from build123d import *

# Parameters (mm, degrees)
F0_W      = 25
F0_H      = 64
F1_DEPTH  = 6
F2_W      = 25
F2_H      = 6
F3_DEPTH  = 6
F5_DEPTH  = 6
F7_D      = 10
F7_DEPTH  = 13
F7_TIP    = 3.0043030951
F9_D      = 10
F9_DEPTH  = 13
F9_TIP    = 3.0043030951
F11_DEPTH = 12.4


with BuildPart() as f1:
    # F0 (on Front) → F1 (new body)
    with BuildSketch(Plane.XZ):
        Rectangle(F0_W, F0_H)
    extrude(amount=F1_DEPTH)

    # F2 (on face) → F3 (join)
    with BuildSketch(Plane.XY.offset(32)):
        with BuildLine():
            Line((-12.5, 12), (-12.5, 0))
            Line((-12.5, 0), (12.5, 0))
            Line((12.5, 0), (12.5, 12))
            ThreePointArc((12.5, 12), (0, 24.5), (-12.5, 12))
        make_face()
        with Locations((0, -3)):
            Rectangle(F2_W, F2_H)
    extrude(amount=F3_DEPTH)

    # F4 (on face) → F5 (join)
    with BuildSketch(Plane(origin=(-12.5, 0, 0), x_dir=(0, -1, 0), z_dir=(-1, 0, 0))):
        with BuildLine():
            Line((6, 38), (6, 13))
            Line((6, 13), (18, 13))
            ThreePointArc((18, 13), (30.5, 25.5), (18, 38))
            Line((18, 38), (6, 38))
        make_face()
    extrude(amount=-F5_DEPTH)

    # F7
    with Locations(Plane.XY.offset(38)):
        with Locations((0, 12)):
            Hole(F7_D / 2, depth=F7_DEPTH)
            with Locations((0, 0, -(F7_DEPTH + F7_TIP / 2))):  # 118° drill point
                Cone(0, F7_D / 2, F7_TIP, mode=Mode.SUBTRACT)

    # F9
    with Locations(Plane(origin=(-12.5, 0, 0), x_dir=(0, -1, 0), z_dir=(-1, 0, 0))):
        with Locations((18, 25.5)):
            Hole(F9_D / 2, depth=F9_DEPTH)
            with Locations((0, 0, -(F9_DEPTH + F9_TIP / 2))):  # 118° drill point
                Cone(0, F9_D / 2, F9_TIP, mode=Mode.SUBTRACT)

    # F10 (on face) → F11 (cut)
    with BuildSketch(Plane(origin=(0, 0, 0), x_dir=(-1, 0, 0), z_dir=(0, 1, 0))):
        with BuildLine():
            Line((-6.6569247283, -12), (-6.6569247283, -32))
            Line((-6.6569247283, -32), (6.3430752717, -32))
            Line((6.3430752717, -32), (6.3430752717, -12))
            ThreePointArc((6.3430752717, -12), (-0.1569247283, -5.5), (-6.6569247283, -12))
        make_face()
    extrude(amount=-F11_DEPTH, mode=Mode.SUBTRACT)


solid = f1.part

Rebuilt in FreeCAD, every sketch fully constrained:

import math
import FreeCAD as App
import Part
import Sketcher


def add_polygon(sketch, points):
    """Adds a closed chain of lines whose ends are joined by coincident constraints."""
    first, n = sketch.GeometryCount, len(points)
    for a, b in zip(points, points[1:] + points[:1]):
        sketch.addGeometry(Part.LineSegment(App.Vector(*a, 0), App.Vector(*b, 0)), False)
    for i in range(n):
        sketch.addConstraint(Sketcher.Constraint("Coincident", first + i, 2, first + (i + 1) % n, 1))

doc = App.newDocument("Part")
params = doc.addObject("Spreadsheet::Sheet", "Params")
for row, (alias, value) in enumerate([
    ("sketch1_width", "25 mm"),
    ("sketch1_height", "64 mm"),
    ("pad1_length", "6 mm"),
    ("sketch2_radius", "12.5 mm"),
    ("sketch2_height", "18 mm"),
    ("pad2_length", "6 mm"),
    ("sketch3_radius", "12.5 mm"),
    ("sketch3_width", "12 mm"),
    ("pad3_length", "6 mm"),
    ("sketch4_diameter", "10 mm"),
    ("hole_diameter", "10 mm"),
    ("hole_depth", "13 mm"),
    ("sketch5_diameter", "10 mm"),
    ("hole2_diameter", "10 mm"),
    ("hole2_depth", "13 mm"),
    ("sketch6_radius", "6.5 mm"),
    ("sketch6_height", "20 mm"),
    ("pocket1_length", "12.4 mm"),
], start=1):
    params.set(f"A{row}", alias)
    params.set(f"B{row}", "=" + value)
    params.setAlias(f"B{row}", alias)

body = doc.addObject("PartDesign::Body", "Body")

sketch1 = body.newObject("Sketcher::SketchObject", "Sketch")
sketch1.AttachmentSupport = (doc.getObject("XZ_Plane"), [""])
sketch1.MapMode = "FlatFace"
add_polygon(sketch1, [(-12, 32), (-12, -32), (12, -32), (12, 32)])
sketch1.addConstraint(Sketcher.Constraint("Vertical", 0))
sketch1.addConstraint(Sketcher.Constraint("Horizontal", 1))
sketch1.addConstraint(Sketcher.Constraint("Vertical", 2))
sketch1.addConstraint(Sketcher.Constraint("Horizontal", 3))
sketch1.addConstraint(Sketcher.Constraint("Symmetric", 0, 2, 2, 2, -1, 1))
sketch1.addConstraint(Sketcher.Constraint("DistanceX", 1, 1, 1, 2, 25.0))
sketch1.addConstraint(Sketcher.Constraint("DistanceY", 0, 2, 0, 1, 64.0))
sketch1.setExpression("Constraints[9]", "Params.sketch1_width")
sketch1.setExpression("Constraints[10]", "Params.sketch1_height")
pad1 = body.newObject("PartDesign::Pad", "Pad")
pad1.Profile = sketch1
pad1.setExpression("Length", "Params.pad1_length")

sketch2 = body.newObject("Sketcher::SketchObject", "Sketch001")
sketch2.AttachmentSupport = (doc.getObject("XY_Plane"), [""])
sketch2.MapMode = "FlatFace"
sketch2.AttachmentOffset = App.Placement(App.Vector(0, 0, 32), App.Rotation())
sketch2.addGeometry(Part.LineSegment(App.Vector(-12, 12, 0), App.Vector(-12, -6, 0)), False)
sketch2.addGeometry(Part.LineSegment(App.Vector(-12, -6, 0), App.Vector(12, -6, 0)), False)
sketch2.addGeometry(Part.LineSegment(App.Vector(12, -6, 0), App.Vector(12, 12, 0)), False)
sketch2.addGeometry(Part.ArcOfCircle(Part.Circle(App.Vector(0, 12, 0), App.Vector(0, 0, 1), 12), math.radians(0), math.radians(180)), False)
sketch2.addConstraint(Sketcher.Constraint("Coincident", 0, 2, 1, 1))
sketch2.addConstraint(Sketcher.Constraint("Coincident", 1, 2, 2, 1))
sketch2.addConstraint(Sketcher.Constraint("Tangent", 2, 2, 3, 1))
sketch2.addConstraint(Sketcher.Constraint("Tangent", 3, 2, 0, 1))
sketch2.addConstraint(Sketcher.Constraint("Vertical", 0))
sketch2.addConstraint(Sketcher.Constraint("Horizontal", 1))
sketch2.addConstraint(Sketcher.Constraint("Vertical", 2))
sketch2.addConstraint(Sketcher.Constraint("PointOnObject", 3, 3, -2))
sketch2.addConstraint(Sketcher.Constraint("Radius", 3, 12.5))
sketch2.addConstraint(Sketcher.Constraint("DistanceY", 0, 2, 0, 1, 18.0))
sketch2.addConstraint(Sketcher.Constraint("DistanceY", -1, 1, 3, 3, 12.0))
sketch2.setExpression("Constraints[8]", "Params.sketch2_radius")
sketch2.setExpression("Constraints[9]", "Params.sketch2_height")
pad2 = body.newObject("PartDesign::Pad", "Pad001")
pad2.Profile = sketch2
pad2.setExpression("Length", "Params.pad2_length")

sketch3 = body.newObject("Sketcher::SketchObject", "Sketch002")
sketch3.AttachmentSupport = (doc.getObject("YZ_Plane"), [""])
sketch3.MapMode = "FlatFace"
sketch3.AttachmentOffset = App.Placement(App.Vector(0, 0, -12.5), App.Rotation())
sketch3.addGeometry(Part.LineSegment(App.Vector(-6, 38, 0), App.Vector(-6, 13, 0)), False)
sketch3.addGeometry(Part.LineSegment(App.Vector(-6, 13, 0), App.Vector(-18, 13, 0)), False)
sketch3.addGeometry(Part.ArcOfCircle(Part.Circle(App.Vector(-18, 26, 0), App.Vector(0, 0, 1), 12), math.radians(90), math.radians(270)), False)
sketch3.addGeometry(Part.LineSegment(App.Vector(-18, 38, 0), App.Vector(-6, 38, 0)), False)
sketch3.addConstraint(Sketcher.Constraint("Coincident", 0, 2, 1, 1))
sketch3.addConstraint(Sketcher.Constraint("Tangent", 1, 2, 2, 2))
sketch3.addConstraint(Sketcher.Constraint("Tangent", 2, 1, 3, 1))
sketch3.addConstraint(Sketcher.Constraint("Coincident", 3, 2, 0, 1))
sketch3.addConstraint(Sketcher.Constraint("Vertical", 0))
sketch3.addConstraint(Sketcher.Constraint("Horizontal", 1))
sketch3.addConstraint(Sketcher.Constraint("Horizontal", 3))
sketch3.addConstraint(Sketcher.Constraint("Radius", 2, 12.5))
sketch3.addConstraint(Sketcher.Constraint("DistanceX", 1, 2, 1, 1, 12.0))
sketch3.addConstraint(Sketcher.Constraint("DistanceX", 2, 3, -1, 1, 18.0))
sketch3.addConstraint(Sketcher.Constraint("DistanceY", -1, 1, 0, 2, 13.0))
sketch3.setExpression("Constraints[7]", "Params.sketch3_radius")
sketch3.setExpression("Constraints[8]", "Params.sketch3_width")
pad3 = body.newObject("PartDesign::Pad", "Pad002")
pad3.Profile = sketch3
pad3.setExpression("Length", "Params.pad3_length")

sketch4 = body.newObject("Sketcher::SketchObject", "Sketch003")
sketch4.AttachmentSupport = (doc.getObject("XY_Plane"), [""])
sketch4.MapMode = "FlatFace"
sketch4.AttachmentOffset = App.Placement(App.Vector(0, 0, 38), App.Rotation())
sketch4.addGeometry(Part.Circle(App.Vector(0, 12, 0), App.Vector(0, 0, 1), 5), False)
sketch4.addConstraint(Sketcher.Constraint("PointOnObject", 0, 3, -2))
sketch4.addConstraint(Sketcher.Constraint("Diameter", 0, 10.0))
sketch4.addConstraint(Sketcher.Constraint("DistanceY", -1, 1, 0, 3, 12.0))
sketch4.setExpression("Constraints[1]", "Params.sketch4_diameter")
doc.recompute()
hole = body.newObject("PartDesign::Hole", "Hole")
hole.Profile = sketch4
hole.ThreadType = "None"
hole.setExpression("Diameter", "Params.hole_diameter")
hole.DepthType = "Dimension"
hole.setExpression("Depth", "Params.hole_depth")
hole.DrillPoint = "Angled"
hole.DrillPointAngle = 118

sketch5 = body.newObject("Sketcher::SketchObject", "Sketch004")
sketch5.AttachmentSupport = (doc.getObject("YZ_Plane"), [""])
sketch5.MapMode = "FlatFace"
sketch5.AttachmentOffset = App.Placement(App.Vector(0, 0, -12.5), App.Rotation())
sketch5.addGeometry(Part.Circle(App.Vector(-18, 26, 0), App.Vector(0, 0, 1), 5), False)
sketch5.addConstraint(Sketcher.Constraint("Diameter", 0, 10.0))
sketch5.addConstraint(Sketcher.Constraint("DistanceX", 0, 3, -1, 1, 18.0))
sketch5.addConstraint(Sketcher.Constraint("DistanceY", -1, 1, 0, 3, 25.5))
sketch5.setExpression("Constraints[0]", "Params.sketch5_diameter")
doc.recompute()
hole2 = body.newObject("PartDesign::Hole", "Hole001")
hole2.Profile = sketch5
hole2.ThreadType = "None"
hole2.setExpression("Diameter", "Params.hole2_diameter")
hole2.DepthType = "Dimension"
hole2.setExpression("Depth", "Params.hole2_depth")
hole2.DrillPoint = "Angled"
hole2.DrillPointAngle = 118
hole2.Reversed = True

sketch6 = body.newObject("Sketcher::SketchObject", "Sketch005")
sketch6.AttachmentSupport = (doc.getObject("XZ_Plane"), [""])
sketch6.MapMode = "FlatFace"
sketch6.addGeometry(Part.LineSegment(App.Vector(7, -12, 0), App.Vector(7, -32, 0)), False)
sketch6.addGeometry(Part.LineSegment(App.Vector(7, -32, 0), App.Vector(-6, -32, 0)), False)
sketch6.addGeometry(Part.LineSegment(App.Vector(-6, -32, 0), App.Vector(-6, -12, 0)), False)
sketch6.addGeometry(Part.ArcOfCircle(Part.Circle(App.Vector(0, -12, 0), App.Vector(0, 0, 1), 6), math.radians(0), math.radians(180)), False)
sketch6.addConstraint(Sketcher.Constraint("Coincident", 0, 2, 1, 1))
sketch6.addConstraint(Sketcher.Constraint("Coincident", 1, 2, 2, 1))
sketch6.addConstraint(Sketcher.Constraint("Tangent", 2, 2, 3, 2))
sketch6.addConstraint(Sketcher.Constraint("Tangent", 3, 1, 0, 1))
sketch6.addConstraint(Sketcher.Constraint("Vertical", 0))
sketch6.addConstraint(Sketcher.Constraint("Horizontal", 1))
sketch6.addConstraint(Sketcher.Constraint("Vertical", 2))
sketch6.addConstraint(Sketcher.Constraint("Radius", 3, 6.5))
sketch6.addConstraint(Sketcher.Constraint("DistanceY", 0, 2, 0, 1, 20.0))
sketch6.addConstraint(Sketcher.Constraint("DistanceY", 3, 3, -1, 1, 12.0))
sketch6.addConstraint(Sketcher.Constraint("DistanceX", -1, 1, 3, 3, 0.156925))
sketch6.setExpression("Constraints[7]", "Params.sketch6_radius")
sketch6.setExpression("Constraints[8]", "Params.sketch6_height")
pocket1 = body.newObject("PartDesign::Pocket", "Pocket")
pocket1.Profile = sketch6
pocket1.setExpression("Length", "Params.pocket1_length")
pocket1.Reversed = True

doc.recompute()
